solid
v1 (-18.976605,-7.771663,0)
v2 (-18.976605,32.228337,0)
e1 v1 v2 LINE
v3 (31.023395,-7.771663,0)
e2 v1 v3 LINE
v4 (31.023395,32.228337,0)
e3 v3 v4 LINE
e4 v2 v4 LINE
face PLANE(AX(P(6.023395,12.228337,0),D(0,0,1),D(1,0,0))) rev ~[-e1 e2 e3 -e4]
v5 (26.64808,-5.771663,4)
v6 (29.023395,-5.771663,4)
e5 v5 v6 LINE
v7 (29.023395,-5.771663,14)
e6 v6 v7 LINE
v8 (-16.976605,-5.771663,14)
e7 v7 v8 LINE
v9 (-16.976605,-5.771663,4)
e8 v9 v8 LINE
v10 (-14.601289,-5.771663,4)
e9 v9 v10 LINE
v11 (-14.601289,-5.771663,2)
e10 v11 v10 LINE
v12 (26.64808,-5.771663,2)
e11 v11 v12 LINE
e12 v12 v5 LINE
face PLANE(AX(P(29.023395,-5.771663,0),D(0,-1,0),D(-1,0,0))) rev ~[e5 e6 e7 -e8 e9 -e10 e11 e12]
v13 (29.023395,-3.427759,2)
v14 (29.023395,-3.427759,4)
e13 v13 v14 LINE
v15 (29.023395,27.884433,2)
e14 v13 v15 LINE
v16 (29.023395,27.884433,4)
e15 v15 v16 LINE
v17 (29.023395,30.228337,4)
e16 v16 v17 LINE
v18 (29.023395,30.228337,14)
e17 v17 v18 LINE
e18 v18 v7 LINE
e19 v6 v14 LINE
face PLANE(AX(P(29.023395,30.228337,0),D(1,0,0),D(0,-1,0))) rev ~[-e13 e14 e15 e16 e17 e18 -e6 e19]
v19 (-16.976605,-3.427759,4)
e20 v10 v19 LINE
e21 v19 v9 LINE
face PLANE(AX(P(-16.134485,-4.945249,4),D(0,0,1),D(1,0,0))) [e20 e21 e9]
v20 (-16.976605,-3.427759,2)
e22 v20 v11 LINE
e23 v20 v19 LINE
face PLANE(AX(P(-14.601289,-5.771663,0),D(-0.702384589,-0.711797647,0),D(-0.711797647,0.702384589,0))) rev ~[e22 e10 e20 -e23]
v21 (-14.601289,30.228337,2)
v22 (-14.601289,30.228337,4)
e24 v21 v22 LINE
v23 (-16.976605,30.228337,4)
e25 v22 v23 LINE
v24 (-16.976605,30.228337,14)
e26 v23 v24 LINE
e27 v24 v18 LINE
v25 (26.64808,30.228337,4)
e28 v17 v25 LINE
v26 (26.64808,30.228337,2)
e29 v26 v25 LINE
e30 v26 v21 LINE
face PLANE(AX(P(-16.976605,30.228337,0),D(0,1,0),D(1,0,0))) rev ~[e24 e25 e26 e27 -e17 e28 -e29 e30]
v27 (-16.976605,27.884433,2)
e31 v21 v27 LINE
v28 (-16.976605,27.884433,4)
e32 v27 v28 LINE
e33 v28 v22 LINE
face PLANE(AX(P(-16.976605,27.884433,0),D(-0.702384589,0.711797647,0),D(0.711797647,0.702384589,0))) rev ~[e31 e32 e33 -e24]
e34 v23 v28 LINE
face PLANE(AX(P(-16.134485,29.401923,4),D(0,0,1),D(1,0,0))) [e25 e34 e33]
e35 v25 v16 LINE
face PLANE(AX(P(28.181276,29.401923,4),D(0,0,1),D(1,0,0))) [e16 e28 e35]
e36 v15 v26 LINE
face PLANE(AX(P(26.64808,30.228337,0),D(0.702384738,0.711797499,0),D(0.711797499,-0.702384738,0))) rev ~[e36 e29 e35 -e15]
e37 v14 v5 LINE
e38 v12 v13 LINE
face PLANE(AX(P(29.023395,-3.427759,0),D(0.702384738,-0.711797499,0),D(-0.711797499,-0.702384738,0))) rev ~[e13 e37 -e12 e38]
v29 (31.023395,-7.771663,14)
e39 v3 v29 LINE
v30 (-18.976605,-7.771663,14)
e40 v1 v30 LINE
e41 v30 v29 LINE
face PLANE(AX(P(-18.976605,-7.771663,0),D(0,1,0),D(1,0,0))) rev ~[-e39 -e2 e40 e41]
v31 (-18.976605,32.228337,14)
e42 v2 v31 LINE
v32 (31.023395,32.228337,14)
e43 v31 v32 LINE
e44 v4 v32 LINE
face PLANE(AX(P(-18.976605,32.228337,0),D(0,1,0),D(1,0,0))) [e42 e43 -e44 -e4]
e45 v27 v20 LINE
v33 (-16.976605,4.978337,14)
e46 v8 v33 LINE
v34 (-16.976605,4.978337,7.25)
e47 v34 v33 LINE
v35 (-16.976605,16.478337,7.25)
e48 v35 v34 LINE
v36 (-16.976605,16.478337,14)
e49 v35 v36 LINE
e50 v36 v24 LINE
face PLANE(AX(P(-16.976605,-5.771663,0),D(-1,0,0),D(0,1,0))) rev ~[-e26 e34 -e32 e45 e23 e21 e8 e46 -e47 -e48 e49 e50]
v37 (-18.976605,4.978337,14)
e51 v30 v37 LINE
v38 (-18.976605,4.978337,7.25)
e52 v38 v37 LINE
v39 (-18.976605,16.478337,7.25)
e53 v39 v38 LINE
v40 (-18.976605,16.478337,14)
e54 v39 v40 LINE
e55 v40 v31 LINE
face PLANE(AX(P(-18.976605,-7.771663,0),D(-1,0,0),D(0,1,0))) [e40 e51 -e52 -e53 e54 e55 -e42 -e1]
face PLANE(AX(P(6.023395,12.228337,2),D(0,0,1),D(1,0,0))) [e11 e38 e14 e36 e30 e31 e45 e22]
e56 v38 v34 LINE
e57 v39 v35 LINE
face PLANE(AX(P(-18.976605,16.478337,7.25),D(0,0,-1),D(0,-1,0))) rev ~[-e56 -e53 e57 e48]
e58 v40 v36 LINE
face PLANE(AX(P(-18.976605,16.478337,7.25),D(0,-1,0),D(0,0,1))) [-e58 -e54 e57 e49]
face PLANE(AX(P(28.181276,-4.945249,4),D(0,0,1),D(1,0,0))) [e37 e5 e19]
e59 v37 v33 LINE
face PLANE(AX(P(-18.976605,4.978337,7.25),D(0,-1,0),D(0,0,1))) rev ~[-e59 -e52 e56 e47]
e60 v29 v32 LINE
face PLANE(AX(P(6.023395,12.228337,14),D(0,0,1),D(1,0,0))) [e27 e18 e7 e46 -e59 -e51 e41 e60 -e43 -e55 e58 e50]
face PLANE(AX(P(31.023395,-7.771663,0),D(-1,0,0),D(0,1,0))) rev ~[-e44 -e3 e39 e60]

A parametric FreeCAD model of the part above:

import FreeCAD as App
import Part
import Sketcher

V = App.Vector


def add_polygon(sketch, points):
    """Adds a closed chain of lines whose ends are joined by coincident constraints."""
    first, n = sketch.GeometryCount, len(points)
    for a, b in zip(points, points[1:] + points[:1]):
        sketch.addGeometry(Part.LineSegment(App.Vector(*a, 0), App.Vector(*b, 0)), False)
    for i in range(n):
        sketch.addConstraint(Sketcher.Constraint("Coincident", first + i, 2, first + (i + 1) % n, 1))

doc = App.newDocument("Part")
body = doc.addObject("PartDesign::Body", "Body")

# Sketch on XY plane
sketch1 = body.newObject("Sketcher::SketchObject", "Sketch")
sketch1.AttachmentSupport = (doc.getObject("XY_Plane"), [""])
sketch1.MapMode = "FlatFace"
add_polygon(sketch1, [(29, 27.9), (26.6, 30.2), (-14.6, 30.2), (-17, 27.9), (-17, -3.4), (-14.6, -5.8), (26.6, -5.8), (29, -3.4)])  # lines 0-7
sketch1.addConstraint(Sketcher.Constraint("Horizontal", 1))
sketch1.addConstraint(Sketcher.Constraint("Vertical", 3))
sketch1.addConstraint(Sketcher.Constraint("Horizontal", 5))
sketch1.addConstraint(Sketcher.Constraint("Vertical", 7))
sketch1.addConstraint(Sketcher.Constraint("Parallel", 0, 4))
sketch1.addConstraint(Sketcher.Constraint("Parallel", 2, 6))
sketch1.addConstraint(Sketcher.Constraint("Horizontal", 3, 2, 6, 2))
sketch1.addConstraint(Sketcher.Constraint("Horizontal", 2, 2, 7, 2))
sketch1.addConstraint(Sketcher.Constraint("Vertical", 1, 2, 4, 2))
sketch1.addConstraint(Sketcher.Constraint("Vertical", 0, 2, 5, 2))
sketch1.addConstraint(Sketcher.Constraint("DistanceY", 4, 2, 1, 2, 36.0))
sketch1.addConstraint(Sketcher.Constraint("DistanceX", 3, 2, 6, 2, 46.0))
sketch1.addConstraint(Sketcher.Constraint("DistanceX", 1, 2, 1, 1, 41.249369))
sketch1.addConstraint(Sketcher.Constraint("DistanceY", 3, 2, 3, 1, 31.312192))
sketch1.addConstraint(Sketcher.Constraint("DistanceX", -1, 1, 0, 2, 26.64808))
sketch1.addConstraint(Sketcher.Constraint("DistanceY", 3, 2, -1, 1, 3.427759))
pad1 = body.newObject("PartDesign::Pad", "Pad")
pad1.Profile = sketch1
pad1.Length = 2

# Sketch on XY plane
sketch2 = body.newObject("Sketcher::SketchObject", "Sketch001")
sketch2.AttachmentSupport = (doc.getObject("XY_Plane"), [""])
sketch2.MapMode = "FlatFace"
add_polygon(sketch2, [(-14.6, -5.8), (-17, -3.4), (-17, -5.8)])  # lines 0-2
add_polygon(sketch2, [(29, -5.8), (29, -3.4), (26.6, -5.8)])  # lines 3-5
add_polygon(sketch2, [(-17, 27.9), (-14.6, 30.2), (-17, 30.2)])  # lines 6-8
add_polygon(sketch2, [(29, 27.9), (29, 30.2), (26.6, 30.2)])  # lines 9-11
sketch2.addConstraint(Sketcher.Constraint("Vertical", 1))
sketch2.addConstraint(Sketcher.Constraint("Horizontal", 2))
sketch2.addConstraint(Sketcher.Constraint("Vertical", 3))
sketch2.addConstraint(Sketcher.Constraint("Horizontal", 5))
sketch2.addConstraint(Sketcher.Constraint("Horizontal", 7))
sketch2.addConstraint(Sketcher.Constraint("Vertical", 8))
sketch2.addConstraint(Sketcher.Constraint("Vertical", 9))
sketch2.addConstraint(Sketcher.Constraint("Horizontal", 10))
sketch2.addConstraint(Sketcher.Constraint("Parallel", 4, 6))
sketch2.addConstraint(Sketcher.Constraint("Parallel", 0, 11))
sketch2.addConstraint(Sketcher.Constraint("Horizontal", 0, 2, 3, 2))
sketch2.addConstraint(Sketcher.Constraint("Horizontal", 2, 2, 4, 2))
sketch2.addConstraint(Sketcher.Constraint("Horizontal", 7, 2, 9, 2))
sketch2.addConstraint(Sketcher.Constraint("Horizontal", 8, 2, 11, 2))
sketch2.addConstraint(Sketcher.Constraint("Vertical", 2, 2, 6, 2))
sketch2.addConstraint(Sketcher.Constraint("Vertical", 1, 2, 7, 2))
sketch2.addConstraint(Sketcher.Constraint("Vertical", 5, 2, 9, 2))
sketch2.addConstraint(Sketcher.Constraint("Vertical", 4, 2, 10, 2))
sketch2.addConstraint(Sketcher.Constraint("DistanceX", 0, 2, 3, 2, 46.0))
sketch2.addConstraint(Sketcher.Constraint("DistanceY", 2, 2, 6, 2, 36.0))
sketch2.addConstraint(Sketcher.Constraint("DistanceX", 2, 1, 2, 2, 2.375316))
sketch2.addConstraint(Sketcher.Constraint("DistanceY", 1, 2, 1, 1, 2.343904))
sketch2.addConstraint(Sketcher.Constraint("DistanceY", 0, 2, -1, 1, 3.427759))
sketch2.addConstraint(Sketcher.Constraint("DistanceX", 2, 2, -1, 1, 14.601289))
pad2 = body.newObject("PartDesign::Pad", "Pad001")
pad2.Profile = sketch2
pad2.Length = 4

# Sketch on XY plane
sketch3 = body.newObject("Sketcher::SketchObject", "Sketch002")
sketch3.AttachmentSupport = (doc.getObject("XY_Plane"), [""])
sketch3.MapMode = "FlatFace"
add_polygon(sketch3, [(-19, 32), (-19, -8), (31, -8), (31, 32)])  # lines 0-3
add_polygon(sketch3, [(-17, 30), (29, 30), (29, -6), (-17, -6)])  # lines 4-7
sketch3.addConstraint(Sketcher.Constraint("Vertical", 0))
sketch3.addConstraint(Sketcher.Constraint("Horizontal", 1))
sketch3.addConstraint(Sketcher.Constraint("Vertical", 2))
sketch3.addConstraint(Sketcher.Constraint("Horizontal", 3))
sketch3.addConstraint(Sketcher.Constraint("Horizontal", 4))
sketch3.addConstraint(Sketcher.Constraint("Vertical", 5))
sketch3.addConstraint(Sketcher.Constraint("Horizontal", 6))
sketch3.addConstraint(Sketcher.Constraint("Vertical", 7))
sketch3.addConstraint(Sketcher.Constraint("DistanceX", 1, 1, 1, 2, 50.0))
sketch3.addConstraint(Sketcher.Constraint("DistanceX", 4, 1, 4, 2, 46.0))
sketch3.addConstraint(Sketcher.Constraint("DistanceY", 0, 2, 0, 1, 40.0))
sketch3.addConstraint(Sketcher.Constraint("DistanceY", 5, 2, 5, 1, 36.0))
sketch3.addConstraint(Sketcher.Constraint("DistanceX", 4, 2, 2, 2, 2.0))
sketch3.addConstraint(Sketcher.Constraint("DistanceY", 4, 2, 2, 2, 2.0))
sketch3.addConstraint(Sketcher.Constraint("DistanceX", 0, 2, -1, 1, 18.976605))
sketch3.addConstraint(Sketcher.Constraint("DistanceY", 0, 2, -1, 1, 7.771663))
pad3 = body.newObject("PartDesign::Pad", "Pad002")
pad3.Profile = sketch3
pad3.Length = 14

# Sketch on YZ plane
sketch4 = body.newObject("Sketcher::SketchObject", "Sketch003")
sketch4.AttachmentSupport = (doc.getObject("YZ_Plane"), [""])
sketch4.MapMode = "FlatFace"
sketch4.AttachmentOffset = App.Placement(V(0, 0, -18.976605), App.Rotation())
add_polygon(sketch4, [(16, 14), (16, 7), (5, 7), (5, 14)])  # lines 0-3
sketch4.addConstraint(Sketcher.Constraint("Vertical", 0))
sketch4.addConstraint(Sketcher.Constraint("Horizontal", 1))
sketch4.addConstraint(Sketcher.Constraint("Vertical", 2))
sketch4.addConstraint(Sketcher.Constraint("Horizontal", 3))
sketch4.addConstraint(Sketcher.Constraint("DistanceX", 1, 2, 1, 1, 11.5))
sketch4.addConstraint(Sketcher.Constraint("DistanceY", -1, 1, 2, 2, 14.0))
sketch4.addConstraint(Sketcher.Constraint("DistanceY", 0, 2, 0, 1, 6.75))
sketch4.addConstraint(Sketcher.Constraint("DistanceX", -1, 1, 0, 2, 16.478337))
pocket1 = body.newObject("PartDesign::Pocket", "Pocket")
pocket1.Profile = sketch4
pocket1.Length = 25
pocket1.Reversed = True

doc.recompute()
